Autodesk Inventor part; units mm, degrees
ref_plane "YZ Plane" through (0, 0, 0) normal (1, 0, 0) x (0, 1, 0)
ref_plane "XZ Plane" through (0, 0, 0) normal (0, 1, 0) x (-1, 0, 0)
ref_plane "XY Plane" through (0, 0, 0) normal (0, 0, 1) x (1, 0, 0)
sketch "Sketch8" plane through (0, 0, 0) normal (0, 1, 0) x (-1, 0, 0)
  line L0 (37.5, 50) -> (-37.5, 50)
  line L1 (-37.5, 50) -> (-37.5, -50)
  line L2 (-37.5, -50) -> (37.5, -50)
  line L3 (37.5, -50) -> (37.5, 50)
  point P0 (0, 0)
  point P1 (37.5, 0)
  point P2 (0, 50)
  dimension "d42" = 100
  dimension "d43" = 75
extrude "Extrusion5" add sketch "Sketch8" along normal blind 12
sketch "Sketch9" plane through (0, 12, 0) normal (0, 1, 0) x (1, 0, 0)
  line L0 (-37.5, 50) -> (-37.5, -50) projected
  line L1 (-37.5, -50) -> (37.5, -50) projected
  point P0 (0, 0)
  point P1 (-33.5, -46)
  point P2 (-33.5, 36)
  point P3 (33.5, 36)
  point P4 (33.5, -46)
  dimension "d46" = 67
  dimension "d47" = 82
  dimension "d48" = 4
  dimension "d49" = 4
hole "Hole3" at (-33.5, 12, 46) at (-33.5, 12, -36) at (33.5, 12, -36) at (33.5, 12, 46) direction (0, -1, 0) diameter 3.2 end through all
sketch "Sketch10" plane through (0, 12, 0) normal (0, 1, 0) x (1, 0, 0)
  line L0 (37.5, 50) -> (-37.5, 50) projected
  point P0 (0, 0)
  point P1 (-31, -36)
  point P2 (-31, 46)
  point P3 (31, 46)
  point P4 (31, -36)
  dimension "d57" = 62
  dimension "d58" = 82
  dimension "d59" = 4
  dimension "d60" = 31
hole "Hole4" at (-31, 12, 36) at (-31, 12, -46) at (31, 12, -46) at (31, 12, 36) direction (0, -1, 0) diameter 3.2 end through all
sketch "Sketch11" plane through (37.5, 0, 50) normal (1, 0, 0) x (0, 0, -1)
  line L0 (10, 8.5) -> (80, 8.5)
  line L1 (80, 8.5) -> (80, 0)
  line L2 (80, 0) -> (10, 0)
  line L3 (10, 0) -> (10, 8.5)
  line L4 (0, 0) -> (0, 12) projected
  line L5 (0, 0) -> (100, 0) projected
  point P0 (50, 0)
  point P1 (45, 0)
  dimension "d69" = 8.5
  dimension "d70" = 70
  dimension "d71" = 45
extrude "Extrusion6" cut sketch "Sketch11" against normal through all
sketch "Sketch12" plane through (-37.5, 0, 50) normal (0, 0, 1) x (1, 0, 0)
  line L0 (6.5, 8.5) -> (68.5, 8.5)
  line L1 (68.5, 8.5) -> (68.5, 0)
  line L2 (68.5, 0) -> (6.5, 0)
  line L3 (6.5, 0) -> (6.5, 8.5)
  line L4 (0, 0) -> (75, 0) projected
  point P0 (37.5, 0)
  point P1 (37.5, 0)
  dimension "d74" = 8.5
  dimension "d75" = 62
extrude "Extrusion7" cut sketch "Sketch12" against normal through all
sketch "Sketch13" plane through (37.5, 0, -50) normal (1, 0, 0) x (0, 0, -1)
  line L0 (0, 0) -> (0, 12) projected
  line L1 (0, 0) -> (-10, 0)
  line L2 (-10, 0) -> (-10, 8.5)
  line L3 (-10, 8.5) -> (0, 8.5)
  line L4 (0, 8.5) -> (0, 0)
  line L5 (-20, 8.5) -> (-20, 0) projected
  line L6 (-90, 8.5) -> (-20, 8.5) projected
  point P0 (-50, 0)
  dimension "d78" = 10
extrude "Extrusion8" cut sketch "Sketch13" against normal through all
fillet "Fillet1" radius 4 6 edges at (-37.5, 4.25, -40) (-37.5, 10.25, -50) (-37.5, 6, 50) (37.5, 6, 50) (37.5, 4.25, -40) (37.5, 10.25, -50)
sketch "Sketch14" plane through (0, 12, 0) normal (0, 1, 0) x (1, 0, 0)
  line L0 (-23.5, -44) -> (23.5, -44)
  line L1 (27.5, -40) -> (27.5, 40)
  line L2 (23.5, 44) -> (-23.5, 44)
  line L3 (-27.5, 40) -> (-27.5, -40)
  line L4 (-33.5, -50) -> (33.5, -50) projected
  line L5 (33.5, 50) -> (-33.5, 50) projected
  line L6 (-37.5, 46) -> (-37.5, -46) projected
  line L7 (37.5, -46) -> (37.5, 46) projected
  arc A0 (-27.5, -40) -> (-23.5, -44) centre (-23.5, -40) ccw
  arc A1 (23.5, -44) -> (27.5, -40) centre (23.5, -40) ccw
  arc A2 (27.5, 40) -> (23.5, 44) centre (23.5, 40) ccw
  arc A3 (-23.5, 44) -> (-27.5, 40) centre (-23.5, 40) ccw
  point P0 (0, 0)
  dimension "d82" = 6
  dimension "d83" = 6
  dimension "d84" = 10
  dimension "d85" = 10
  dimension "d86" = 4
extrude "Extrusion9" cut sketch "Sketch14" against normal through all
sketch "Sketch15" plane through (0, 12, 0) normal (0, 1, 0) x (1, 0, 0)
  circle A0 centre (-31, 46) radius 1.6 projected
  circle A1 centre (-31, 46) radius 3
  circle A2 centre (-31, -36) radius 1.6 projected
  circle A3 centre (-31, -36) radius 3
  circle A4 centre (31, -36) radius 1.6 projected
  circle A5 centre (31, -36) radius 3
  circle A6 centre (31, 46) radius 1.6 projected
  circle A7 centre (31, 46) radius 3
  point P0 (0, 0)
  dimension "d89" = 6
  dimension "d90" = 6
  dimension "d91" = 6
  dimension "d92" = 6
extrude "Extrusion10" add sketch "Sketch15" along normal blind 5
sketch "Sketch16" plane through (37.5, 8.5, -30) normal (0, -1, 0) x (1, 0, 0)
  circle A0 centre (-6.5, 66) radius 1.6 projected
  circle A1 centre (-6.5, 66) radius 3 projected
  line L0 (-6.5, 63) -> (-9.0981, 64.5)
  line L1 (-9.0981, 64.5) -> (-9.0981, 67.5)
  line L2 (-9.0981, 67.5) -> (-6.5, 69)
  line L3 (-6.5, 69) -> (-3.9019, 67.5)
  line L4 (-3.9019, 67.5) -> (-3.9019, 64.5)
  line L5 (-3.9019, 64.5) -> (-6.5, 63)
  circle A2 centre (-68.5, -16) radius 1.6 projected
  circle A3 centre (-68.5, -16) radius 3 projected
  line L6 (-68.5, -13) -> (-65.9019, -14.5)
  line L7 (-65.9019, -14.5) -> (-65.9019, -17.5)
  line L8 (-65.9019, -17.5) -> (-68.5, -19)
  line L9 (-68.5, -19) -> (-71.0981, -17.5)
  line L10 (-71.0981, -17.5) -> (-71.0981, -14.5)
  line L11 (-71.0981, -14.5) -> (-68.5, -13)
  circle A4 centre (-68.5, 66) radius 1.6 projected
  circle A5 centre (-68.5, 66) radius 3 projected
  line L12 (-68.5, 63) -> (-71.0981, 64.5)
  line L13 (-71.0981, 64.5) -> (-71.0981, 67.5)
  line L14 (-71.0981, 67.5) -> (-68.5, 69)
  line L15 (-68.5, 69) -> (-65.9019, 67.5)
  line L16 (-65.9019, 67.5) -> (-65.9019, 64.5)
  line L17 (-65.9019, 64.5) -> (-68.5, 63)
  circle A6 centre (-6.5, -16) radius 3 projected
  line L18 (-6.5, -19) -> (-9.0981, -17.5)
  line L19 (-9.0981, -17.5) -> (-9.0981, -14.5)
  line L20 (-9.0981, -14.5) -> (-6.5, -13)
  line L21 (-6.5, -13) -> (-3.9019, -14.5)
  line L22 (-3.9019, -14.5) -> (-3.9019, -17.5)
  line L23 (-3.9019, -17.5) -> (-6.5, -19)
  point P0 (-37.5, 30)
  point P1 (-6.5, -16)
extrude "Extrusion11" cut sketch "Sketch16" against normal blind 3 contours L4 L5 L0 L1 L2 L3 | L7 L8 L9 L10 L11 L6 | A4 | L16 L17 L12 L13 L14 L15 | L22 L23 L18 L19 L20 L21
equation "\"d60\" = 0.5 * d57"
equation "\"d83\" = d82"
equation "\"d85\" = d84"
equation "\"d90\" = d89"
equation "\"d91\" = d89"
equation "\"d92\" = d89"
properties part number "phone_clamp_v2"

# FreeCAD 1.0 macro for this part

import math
import FreeCAD as App
import Part
import Sketcher
from FreeCAD import Vector
Q = App.Units.Quantity


def edges_at(feature, points):
    """Names of the edges that pass closest to the given points."""
    edges = feature.Shape.Edges
    near = lambda p: min(range(len(edges)), key=lambda i: edges[i].distToShape(Part.Vertex(*p))[0])
    return sorted({f"Edge{near(p) + 1}" for p in points})


def add_polygon(sketch, points):
    """Adds a closed chain of lines whose ends are joined by coincident constraints."""
    first, n = sketch.GeometryCount, len(points)
    for a, b in zip(points, points[1:] + points[:1]):
        sketch.addGeometry(Part.LineSegment(App.Vector(*a, 0), App.Vector(*b, 0)), False)
    for i in range(n):
        sketch.addConstraint(Sketcher.Constraint("Coincident", first + i, 2, first + (i + 1) % n, 1))

doc = App.newDocument("Part")
body = doc.addObject("PartDesign::Body", "Body")

sketch1 = doc.addObject("Sketcher::SketchObject", "Sketch")
body.addObject(sketch1)
sketch1.AttachmentSupport = (doc.XZ_Plane, [""])
sketch1.MapMode = "FlatFace"
add_polygon(sketch1, [(-37.5, -50), (-37.5, 50), (37.5, 50), (37.5, -50)])
sketch1.addConstraint(Sketcher.Constraint("Vertical", 0))
sketch1.addConstraint(Sketcher.Constraint("Horizontal", 1))
sketch1.addConstraint(Sketcher.Constraint("Vertical", 2))
sketch1.addConstraint(Sketcher.Constraint("Horizontal", 3))
sketch1.addConstraint(Sketcher.Constraint("Symmetric", 0, 2, 2, 2, -1, 1))
sketch1.addConstraint(Sketcher.Constraint("DistanceX", 1, 1, 1, 2, Q("75 mm")))
sketch1.addConstraint(Sketcher.Constraint("DistanceY", 0, 1, 0, 2, Q("100 mm")))
pad1 = doc.addObject("PartDesign::Pad", "Pad")
body.addObject(pad1)
pad1.Profile = sketch1
pad1.Length = 12
pad1.Reversed = True

sketch2 = doc.addObject("Sketcher::SketchObject", "Sketch001")
body.addObject(sketch2)
sketch2.AttachmentSupport = (doc.XZ_Plane, [""])
sketch2.MapMode = "FlatFace"
sketch2.AttachmentOffset = App.Placement(Vector(0, 0, -12), App.Rotation())
sketch2.addGeometry(Part.Circle(Vector(-33.5, 46, 0), Vector(0, 0, 1), 1.6), False)
sketch2.addGeometry(Part.Circle(Vector(-33.5, -36, 0), Vector(0, 0, 1), 1.6), False)
sketch2.addGeometry(Part.Circle(Vector(33.5, -36, 0), Vector(0, 0, 1), 1.6), False)
sketch2.addGeometry(Part.Circle(Vector(33.5, 46, 0), Vector(0, 0, 1), 1.6), False)
sketch2.addConstraint(Sketcher.Constraint("Equal", 0, 1))
sketch2.addConstraint(Sketcher.Constraint("Equal", 1, 2))
sketch2.addConstraint(Sketcher.Constraint("Equal", 2, 3))
sketch2.addConstraint(Sketcher.Constraint("Symmetric", 1, 3, 2, 3, -2))
sketch2.addConstraint(Sketcher.Constraint("Symmetric", 0, 3, 3, 3, -2))
sketch2.addConstraint(Sketcher.Constraint("Vertical", 0, 3, 1, 3))
sketch2.addConstraint(Sketcher.Constraint("Diameter", 0, Q("3.2 mm")))
sketch2.addConstraint(Sketcher.Constraint("DistanceY", -1, 1, 0, 3, Q("46 mm")))
sketch2.addConstraint(Sketcher.Constraint("DistanceY", 1, 3, -1, 1, Q("36 mm")))
sketch2.addConstraint(Sketcher.Constraint("DistanceX", 1, 3, 2, 3, Q("67 mm")))
doc.recompute()
hole = doc.addObject("PartDesign::Hole", "Hole")
body.addObject(hole)
hole.Profile = sketch2
hole.ThreadType = "None"
hole.Diameter = 3.2
hole.DepthType = "ThroughAll"
hole.Reversed = True

sketch3 = doc.addObject("Sketcher::SketchObject", "Sketch002")
body.addObject(sketch3)
sketch3.AttachmentSupport = (doc.XZ_Plane, [""])
sketch3.MapMode = "FlatFace"
sketch3.AttachmentOffset = App.Placement(Vector(0, 0, -12), App.Rotation())
sketch3.addGeometry(Part.Circle(Vector(-31, 36, 0), Vector(0, 0, 1), 1.6), False)
sketch3.addGeometry(Part.Circle(Vector(-31, -46, 0), Vector(0, 0, 1), 1.6), False)
sketch3.addGeometry(Part.Circle(Vector(31, -46, 0), Vector(0, 0, 1), 1.6), False)
sketch3.addGeometry(Part.Circle(Vector(31, 36, 0), Vector(0, 0, 1), 1.6), False)
sketch3.addConstraint(Sketcher.Constraint("Equal", 0, 1))
sketch3.addConstraint(Sketcher.Constraint("Equal", 1, 2))
sketch3.addConstraint(Sketcher.Constraint("Equal", 2, 3))
sketch3.addConstraint(Sketcher.Constraint("Symmetric", 1, 3, 2, 3, -2))
sketch3.addConstraint(Sketcher.Constraint("Symmetric", 0, 3, 3, 3, -2))
sketch3.addConstraint(Sketcher.Constraint("Vertical", 0, 3, 1, 3))
sketch3.addConstraint(Sketcher.Constraint("Diameter", 0, Q("3.2 mm")))
sketch3.addConstraint(Sketcher.Constraint("DistanceX", 0, 3, -1, 1, Q("31 mm")))
sketch3.addConstraint(Sketcher.Constraint("DistanceY", -1, 1, 0, 3, Q("36 mm")))
sketch3.addConstraint(Sketcher.Constraint("DistanceY", 1, 3, -1, 1, Q("46 mm")))
doc.recompute()
hole2 = doc.addObject("PartDesign::Hole", "Hole001")
body.addObject(hole2)
hole2.Profile = sketch3
hole2.ThreadType = "None"
hole2.Diameter = 3.2
hole2.DepthType = "ThroughAll"
hole2.Reversed = True

sketch4 = doc.addObject("Sketcher::SketchObject", "Sketch003")
body.addObject(sketch4)
sketch4.AttachmentSupport = (doc.YZ_Plane, [""])
sketch4.MapMode = "FlatFace"
sketch4.AttachmentOffset = App.Placement(Vector(0, 0, 37.5), App.Rotation())
add_polygon(sketch4, [(8.5, -30), (8.5, 40), (0, 40), (0, -30)])
sketch4.addConstraint(Sketcher.Constraint("Vertical", 0))
sketch4.addConstraint(Sketcher.Constraint("Horizontal", 1))
sketch4.addConstraint(Sketcher.Constraint("Vertical", 2))
sketch4.addConstraint(Sketcher.Constraint("Horizontal", 3))
sketch4.addConstraint(Sketcher.Constraint("PointOnObject", 1, 2, -2))
sketch4.addConstraint(Sketcher.Constraint("DistanceY", 0, 1, 0, 2, Q("70 mm")))
sketch4.addConstraint(Sketcher.Constraint("DistanceX", 1, 2, 1, 1, Q("8.5 mm")))
sketch4.addConstraint(Sketcher.Constraint("DistanceY", -1, 1, 0, 2, Q("40 mm")))
pocket1 = doc.addObject("PartDesign::Pocket", "Pocket")
body.addObject(pocket1)
pocket1.Profile = sketch4
pocket1.Type = "ThroughAll"

sketch5 = doc.addObject("Sketcher::SketchObject", "Sketch004")
body.addObject(sketch5)
sketch5.AttachmentSupport = (doc.XY_Plane, [""])
sketch5.MapMode = "FlatFace"
sketch5.AttachmentOffset = App.Placement(Vector(0, 0, 50), App.Rotation())
add_polygon(sketch5, [(31, 8.5), (-31, 8.5), (-31, 0), (31, 0)])
sketch5.addConstraint(Sketcher.Constraint("Horizontal", 0))
sketch5.addConstraint(Sketcher.Constraint("Vertical", 1))
sketch5.addConstraint(Sketcher.Constraint("Horizontal", 2))
sketch5.addConstraint(Sketcher.Constraint("Vertical", 3))
sketch5.addConstraint(Sketcher.Constraint("Symmetric", 1, 2, 2, 2, -1, 1))
sketch5.addConstraint(Sketcher.Constraint("DistanceX", 0, 2, 0, 1, Q("62 mm")))
sketch5.addConstraint(Sketcher.Constraint("DistanceY", 1, 2, 1, 1, Q("8.5 mm")))
pocket2 = doc.addObject("PartDesign::Pocket", "Pocket001")
body.addObject(pocket2)
pocket2.Profile = sketch5
pocket2.Type = "ThroughAll"

sketch6 = doc.addObject("Sketcher::SketchObject", "Sketch005")
body.addObject(sketch6)
sketch6.AttachmentSupport = (doc.YZ_Plane, [""])
sketch6.MapMode = "FlatFace"
sketch6.AttachmentOffset = App.Placement(Vector(0, 0, 37.5), App.Rotation())
add_polygon(sketch6, [(0, -40), (0, -50), (8.5, -50), (8.5, -40)])
sketch6.addConstraint(Sketcher.Constraint("Vertical", 0))
sketch6.addConstraint(Sketcher.Constraint("Horizontal", 1))
sketch6.addConstraint(Sketcher.Constraint("Vertical", 2))
sketch6.addConstraint(Sketcher.Constraint("Horizontal", 3))
sketch6.addConstraint(Sketcher.Constraint("PointOnObject", 0, 2, -2))
sketch6.addConstraint(Sketcher.Constraint("DistanceY", 0, 2, 0, 1, Q("10 mm")))
sketch6.addConstraint(Sketcher.Constraint("DistanceX", 1, 1, 1, 2, Q("8.5 mm")))
sketch6.addConstraint(Sketcher.Constraint("DistanceY", 0, 2, -1, 1, Q("50 mm")))
pocket3 = doc.addObject("PartDesign::Pocket", "Pocket002")
body.addObject(pocket3)
pocket3.Profile = sketch6
pocket3.Type = "ThroughAll"
doc.recompute()

fillet = doc.addObject("PartDesign::Fillet", "Fillet")
body.addObject(fillet)
fillet.Base = (pocket3, edges_at(pocket3, [
    (-37.5, 4.25, -40),
    (-37.5, 10.25, -50),
    (-37.5, 6, 50),
    (37.5, 6, 50),
    (37.5, 4.25, -40),
    (37.5, 10.25, -50),
]))
fillet.Radius = 4

sketch7 = doc.addObject("Sketcher::SketchObject", "Sketch006")
body.addObject(sketch7)
sketch7.AttachmentSupport = (doc.XZ_Plane, [""])
sketch7.MapMode = "FlatFace"
sketch7.AttachmentOffset = App.Placement(Vector(0, 0, -12), App.Rotation())
sketch7.addGeometry(Part.ArcOfCircle(Part.Circle(Vector(-23.5, 40, 0), Vector(0, 0, 1), 4), math.radians(90), math.radians(180)), False)
sketch7.addGeometry(Part.LineSegment(Vector(-23.5, 44, 0), Vector(23.5, 44, 0)), False)
sketch7.addGeometry(Part.ArcOfCircle(Part.Circle(Vector(23.5, 40, 0), Vector(0, 0, 1), 4), math.radians(0), math.radians(90)), False)
sketch7.addGeometry(Part.LineSegment(Vector(27.5, 40, 0), Vector(27.5, -40, 0)), False)
sketch7.addGeometry(Part.ArcOfCircle(Part.Circle(Vector(23.5, -40, 0), Vector(0, 0, 1), 4), math.radians(-90), math.radians(0)), False)
sketch7.addGeometry(Part.LineSegment(Vector(23.5, -44, 0), Vector(-23.5, -44, 0)), False)
sketch7.addGeometry(Part.ArcOfCircle(Part.Circle(Vector(-23.5, -40, 0), Vector(0, 0, 1), 4), math.radians(180), math.radians(270)), False)
sketch7.addGeometry(Part.LineSegment(Vector(-27.5, -40, 0), Vector(-27.5, 40, 0)), False)
sketch7.addConstraint(Sketcher.Constraint("Tangent", 0, 1, 1, 1))
sketch7.addConstraint(Sketcher.Constraint("Tangent", 1, 2, 2, 2))
sketch7.addConstraint(Sketcher.Constraint("Tangent", 2, 1, 3, 1))
sketch7.addConstraint(Sketcher.Constraint("Tangent", 3, 2, 4, 2))
sketch7.addConstraint(Sketcher.Constraint("Tangent", 4, 1, 5, 1))
sketch7.addConstraint(Sketcher.Constraint("Tangent", 5, 2, 6, 2))
sketch7.addConstraint(Sketcher.Constraint("Tangent", 6, 1, 7, 1))
sketch7.addConstraint(Sketcher.Constraint("Tangent", 7, 2, 0, 2))
sketch7.addConstraint(Sketcher.Constraint("Horizontal", 1))
sketch7.addConstraint(Sketcher.Constraint("Vertical", 3))
sketch7.addConstraint(Sketcher.Constraint("Horizontal", 5))
sketch7.addConstraint(Sketcher.Constraint("Vertical", 7))
sketch7.addConstraint(Sketcher.Constraint("Equal", 0, 2))
sketch7.addConstraint(Sketcher.Constraint("Equal", 2, 4))
sketch7.addConstraint(Sketcher.Constraint("Equal", 4, 6))
sketch7.addConstraint(Sketcher.Constraint("Symmetric", 0, 3, 4, 3, -1, 1))
sketch7.addConstraint(Sketcher.Constraint("Radius", 0, Q("4 mm")))
sketch7.addConstraint(Sketcher.Constraint("DistanceX", 1, 1, 1, 2, Q("47 mm")))
sketch7.addConstraint(Sketcher.Constraint("DistanceY", 3, 2, 3, 1, Q("80 mm")))
pocket4 = doc.addObject("PartDesign::Pocket", "Pocket003")
body.addObject(pocket4)
pocket4.Profile = sketch7
pocket4.Type = "ThroughAll"
pocket4.Reversed = True

sketch8 = doc.addObject("Sketcher::SketchObject", "Sketch007")
body.addObject(sketch8)
sketch8.AttachmentSupport = (doc.XZ_Plane, [""])
sketch8.MapMode = "FlatFace"
sketch8.AttachmentOffset = App.Placement(Vector(0, 0, -12), App.Rotation())
sketch8.addGeometry(Part.Circle(Vector(-31, -46, 0), Vector(0, 0, 1), 3), False)
sketch8.addGeometry(Part.Circle(Vector(-31, -46, 0), Vector(0, 0, 1), 1.6), False)
sketch8.addGeometry(Part.Circle(Vector(-31, 36, 0), Vector(0, 0, 1), 3), False)
sketch8.addGeometry(Part.Circle(Vector(-31, 36, 0), Vector(0, 0, 1), 1.6), False)
sketch8.addGeometry(Part.Circle(Vector(31, 36, 0), Vector(0, 0, 1), 3), False)
sketch8.addGeometry(Part.Circle(Vector(31, 36, 0), Vector(0, 0, 1), 1.6), False)
sketch8.addGeometry(Part.Circle(Vector(31, -46, 0), Vector(0, 0, 1), 3), False)
sketch8.addGeometry(Part.Circle(Vector(31, -46, 0), Vector(0, 0, 1), 1.6), False)
sketch8.addConstraint(Sketcher.Constraint("Coincident", 1, 3, 0, 3))
sketch8.addConstraint(Sketcher.Constraint("Coincident", 3, 3, 2, 3))
sketch8.addConstraint(Sketcher.Constraint("Coincident", 5, 3, 4, 3))
sketch8.addConstraint(Sketcher.Constraint("Coincident", 7, 3, 6, 3))
sketch8.addConstraint(Sketcher.Constraint("Equal", 0, 2))
sketch8.addConstraint(Sketcher.Constraint("Equal", 1, 3))
sketch8.addConstraint(Sketcher.Constraint("Equal", 2, 4))
sketch8.addConstraint(Sketcher.Constraint("Equal", 3, 5))
sketch8.addConstraint(Sketcher.Constraint("Equal", 4, 6))
sketch8.addConstraint(Sketcher.Constraint("Equal", 5, 7))
sketch8.addConstraint(Sketcher.Constraint("Symmetric", 2, 3, 4, 3, -2))
sketch8.addConstraint(Sketcher.Constraint("Symmetric", 0, 3, 6, 3, -2))
sketch8.addConstraint(Sketcher.Constraint("Vertical", 1, 3, 2, 3))
sketch8.addConstraint(Sketcher.Constraint("Diameter", 0, Q("6 mm")))
sketch8.addConstraint(Sketcher.Constraint("Diameter", 1, Q("3.2 mm")))
sketch8.addConstraint(Sketcher.Constraint("DistanceX", 0, 3, -1, 1, Q("31 mm")))
sketch8.addConstraint(Sketcher.Constraint("DistanceY", 0, 3, -1, 1, Q("46 mm")))
sketch8.addConstraint(Sketcher.Constraint("DistanceY", -1, 1, 2, 3, Q("36 mm")))
pad2 = doc.addObject("PartDesign::Pad", "Pad001")
body.addObject(pad2)
pad2.Profile = sketch8
pad2.Length = 5
pad2.Reversed = True

sketch9 = doc.addObject("Sketcher::SketchObject", "Sketch008")
body.addObject(sketch9)
sketch9.AttachmentSupport = (doc.XZ_Plane, [""])
sketch9.MapMode = "FlatFace"
sketch9.AttachmentOffset = App.Placement(Vector(0, 0, -8.5), App.Rotation())
add_polygon(sketch9, [(33.5981, 34.5), (33.5981, 37.5), (31, 39), (28.4019, 37.5), (28.4019, 34.5), (31, 33)])
sketch9.addGeometry(Part.Circle(Vector(31, 36, 0), Vector(0, 0, 1), 1.6), False)
add_polygon(sketch9, [(-28.4019, -47.5), (-28.4019, -44.5), (-31, -43), (-33.5981, -44.5), (-33.5981, -47.5), (-31, -49)])
sketch9.addGeometry(Part.Circle(Vector(-31, -46, 0), Vector(0, 0, 1), 1.6), False)
add_polygon(sketch9, [(-28.4019, 34.5), (-28.4019, 37.5), (-31, 39), (-33.5981, 37.5), (-33.5981, 34.5), (-31, 33)])
add_polygon(sketch9, [(33.5981, -47.5), (33.5981, -44.5), (31, -43), (28.4019, -44.5), (28.4019, -47.5), (31, -49)])
sketch9.addConstraint(Sketcher.Constraint("Vertical", 0))
sketch9.addConstraint(Sketcher.Constraint("Vertical", 3))
sketch9.addConstraint(Sketcher.Constraint("Vertical", 7))
sketch9.addConstraint(Sketcher.Constraint("Vertical", 10))
sketch9.addConstraint(Sketcher.Constraint("Vertical", 14))
sketch9.addConstraint(Sketcher.Constraint("Vertical", 17))
sketch9.addConstraint(Sketcher.Constraint("Vertical", 20))
sketch9.addConstraint(Sketcher.Constraint("Vertical", 23))
sketch9.addConstraint(Sketcher.Constraint("Equal", 6, 13))
sketch9.addConstraint(Sketcher.Constraint("Symmetric", 2, 2, 14, 2, -2))
sketch9.addConstraint(Sketcher.Constraint("Symmetric", 1, 2, 15, 2, -2))
sketch9.addConstraint(Sketcher.Constraint("Symmetric", 0, 2, 16, 2, -2))
sketch9.addConstraint(Sketcher.Constraint("Symmetric", 4, 2, 18, 2, -2))
sketch9.addConstraint(Sketcher.Constraint("Symmetric", 9, 2, 20, 2, -2))
sketch9.addConstraint(Sketcher.Constraint("Symmetric", 8, 2, 21, 2, -2))
sketch9.addConstraint(Sketcher.Constraint("Symmetric", 7, 2, 22, 2, -2))
sketch9.addConstraint(Sketcher.Constraint("Symmetric", 11, 2, 24, 2, -2))
sketch9.addConstraint(Sketcher.Constraint("Parallel", 1, 4))
sketch9.addConstraint(Sketcher.Constraint("Parallel", 2, 5))
sketch9.addConstraint(Sketcher.Constraint("Parallel", 4, 8))
sketch9.addConstraint(Sketcher.Constraint("Parallel", 5, 9))
sketch9.addConstraint(Sketcher.Constraint("Parallel", 8, 11))
sketch9.addConstraint(Sketcher.Constraint("Parallel", 9, 12))
sketch9.addConstraint(Sketcher.Constraint("Parallel", 11, 15))
sketch9.addConstraint(Sketcher.Constraint("Parallel", 15, 18))
sketch9.addConstraint(Sketcher.Constraint("Parallel", 16, 19))
sketch9.addConstraint(Sketcher.Constraint("Parallel", 21, 24))
sketch9.addConstraint(Sketcher.Constraint("Parallel", 22, 25))
sketch9.addConstraint(Sketcher.Constraint("Horizontal", 0, 2, 2, 2))
sketch9.addConstraint(Sketcher.Constraint("Horizontal", 3, 2, 5, 2))
sketch9.addConstraint(Sketcher.Constraint("Horizontal", 7, 2, 9, 2))
sketch9.addConstraint(Sketcher.Constraint("Horizontal", 10, 2, 12, 2))
sketch9.addConstraint(Sketcher.Constraint("Vertical", 6, 3, 1, 2))
sketch9.addConstraint(Sketcher.Constraint("Vertical", 13, 3, 8, 2))
sketch9.addConstraint(Sketcher.Constraint("Vertical", 12, 2, 14, 2))
sketch9.addConstraint(Sketcher.Constraint("Vertical", 11, 2, 15, 2))
sketch9.addConstraint(Sketcher.Constraint("Equal", 3, 7))
sketch9.addConstraint(Sketcher.Constraint("Diameter", 6, Q("3.2 mm")))
sketch9.addConstraint(Sketcher.Constraint("DistanceY", 0, 1, 0, 2, Q("3 mm")))
sketch9.addConstraint(Sketcher.Constraint("Angle", 1, Q("150.0002 deg")))
sketch9.addConstraint(Sketcher.Constraint("Distance", 1, Q("3 mm")))
sketch9.addConstraint(Sketcher.Constraint("DistanceX", -1, 1, 6, 3, Q("31 mm")))
sketch9.addConstraint(Sketcher.Constraint("DistanceY", -1, 1, 6, 3, Q("36 mm")))
sketch9.addConstraint(Sketcher.Constraint("DistanceY", 13, 3, -1, 1, Q("46 mm")))
sketch9.addConstraint(Sketcher.Constraint("DistanceY", -1, 1, 1, 2, Q("39 mm")))
sketch9.addConstraint(Sketcher.Constraint("DistanceY", 8, 2, -1, 1, Q("43 mm")))
pocket5 = doc.addObject("PartDesign::Pocket", "Pocket004")
body.addObject(pocket5)
pocket5.Profile = sketch9
pocket5.Length = 3

doc.recompute()
